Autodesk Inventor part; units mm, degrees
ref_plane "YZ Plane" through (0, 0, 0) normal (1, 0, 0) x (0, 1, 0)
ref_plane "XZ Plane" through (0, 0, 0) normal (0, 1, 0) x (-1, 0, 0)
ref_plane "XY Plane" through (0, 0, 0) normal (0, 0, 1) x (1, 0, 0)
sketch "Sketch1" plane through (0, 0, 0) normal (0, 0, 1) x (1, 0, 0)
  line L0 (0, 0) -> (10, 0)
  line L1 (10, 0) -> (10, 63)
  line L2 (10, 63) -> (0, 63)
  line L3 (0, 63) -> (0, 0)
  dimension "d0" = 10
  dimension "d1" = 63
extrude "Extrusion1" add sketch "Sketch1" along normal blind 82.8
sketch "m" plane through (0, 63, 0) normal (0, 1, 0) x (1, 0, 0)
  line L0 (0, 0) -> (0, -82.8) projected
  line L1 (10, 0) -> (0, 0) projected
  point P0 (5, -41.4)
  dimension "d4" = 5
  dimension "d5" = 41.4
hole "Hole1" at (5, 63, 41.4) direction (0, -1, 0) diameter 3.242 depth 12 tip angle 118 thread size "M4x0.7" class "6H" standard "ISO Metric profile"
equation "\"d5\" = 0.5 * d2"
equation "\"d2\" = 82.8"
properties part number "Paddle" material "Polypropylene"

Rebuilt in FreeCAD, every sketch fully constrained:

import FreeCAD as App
import Part
import Sketcher
from FreeCAD import Vector
Q = App.Units.Quantity


def add_polygon(sketch, points):
    """Adds a closed chain of lines whose ends are joined by coincident constraints."""
    first, n = sketch.GeometryCount, len(points)
    for a, b in zip(points, points[1:] + points[:1]):
        sketch.addGeometry(Part.LineSegment(App.Vector(*a, 0), App.Vector(*b, 0)), False)
    for i in range(n):
        sketch.addConstraint(Sketcher.Constraint("Coincident", first + i, 2, first + (i + 1) % n, 1))

doc = App.newDocument("Part")
body = doc.addObject("PartDesign::Body", "Body")

# Sketch on XY plane
sketch1 = doc.addObject("Sketcher::SketchObject", "Sketch")
body.addObject(sketch1)
sketch1.AttachmentSupport = (doc.XY_Plane, [""])
sketch1.MapMode = "FlatFace"
add_polygon(sketch1, [(0, 63), (0, 0), (10, 0), (10, 63)])  # lines 0-3
sketch1.addConstraint(Sketcher.Constraint("Vertical", 0))
sketch1.addConstraint(Sketcher.Constraint("Horizontal", 1))
sketch1.addConstraint(Sketcher.Constraint("Vertical", 2))
sketch1.addConstraint(Sketcher.Constraint("Horizontal", 3))
sketch1.addConstraint(Sketcher.Constraint("Coincident", 0, 2, -1, 1))
sketch1.addConstraint(Sketcher.Constraint("DistanceX", 1, 1, 1, 2, Q("10 mm")))
sketch1.addConstraint(Sketcher.Constraint("DistanceY", 0, 2, 0, 1, Q("63 mm")))
pad1 = doc.addObject("PartDesign::Pad", "Pad")
body.addObject(pad1)
pad1.Profile = sketch1
pad1.Length = 82.8

# Sketch on XZ plane
sketch2 = doc.addObject("Sketcher::SketchObject", "Sketch001")
body.addObject(sketch2)
sketch2.AttachmentSupport = (doc.XZ_Plane, [""])
sketch2.MapMode = "FlatFace"
sketch2.AttachmentOffset = App.Placement(Vector(0, 0, -63), App.Rotation())
sketch2.addGeometry(Part.Circle(Vector(5, 41.4, 0), Vector(0, 0, 1), 1.6), False)
sketch2.addConstraint(Sketcher.Constraint("Diameter", 0, Q("3.242 mm")))
sketch2.addConstraint(Sketcher.Constraint("DistanceX", -1, 1, 0, 3, Q("5 mm")))
sketch2.addConstraint(Sketcher.Constraint("DistanceY", -1, 1, 0, 3, Q("41.4 mm")))
doc.recompute()
hole = doc.addObject("PartDesign::Hole", "Hole")
body.addObject(hole)
hole.Profile = sketch2
hole.ThreadType = "None"
hole.Diameter = 3.242
hole.DepthType = "Dimension"
hole.Depth = 12
hole.DrillPoint = "Angled"
hole.DrillPointAngle = 118
hole.Reversed = True

doc.recompute()
